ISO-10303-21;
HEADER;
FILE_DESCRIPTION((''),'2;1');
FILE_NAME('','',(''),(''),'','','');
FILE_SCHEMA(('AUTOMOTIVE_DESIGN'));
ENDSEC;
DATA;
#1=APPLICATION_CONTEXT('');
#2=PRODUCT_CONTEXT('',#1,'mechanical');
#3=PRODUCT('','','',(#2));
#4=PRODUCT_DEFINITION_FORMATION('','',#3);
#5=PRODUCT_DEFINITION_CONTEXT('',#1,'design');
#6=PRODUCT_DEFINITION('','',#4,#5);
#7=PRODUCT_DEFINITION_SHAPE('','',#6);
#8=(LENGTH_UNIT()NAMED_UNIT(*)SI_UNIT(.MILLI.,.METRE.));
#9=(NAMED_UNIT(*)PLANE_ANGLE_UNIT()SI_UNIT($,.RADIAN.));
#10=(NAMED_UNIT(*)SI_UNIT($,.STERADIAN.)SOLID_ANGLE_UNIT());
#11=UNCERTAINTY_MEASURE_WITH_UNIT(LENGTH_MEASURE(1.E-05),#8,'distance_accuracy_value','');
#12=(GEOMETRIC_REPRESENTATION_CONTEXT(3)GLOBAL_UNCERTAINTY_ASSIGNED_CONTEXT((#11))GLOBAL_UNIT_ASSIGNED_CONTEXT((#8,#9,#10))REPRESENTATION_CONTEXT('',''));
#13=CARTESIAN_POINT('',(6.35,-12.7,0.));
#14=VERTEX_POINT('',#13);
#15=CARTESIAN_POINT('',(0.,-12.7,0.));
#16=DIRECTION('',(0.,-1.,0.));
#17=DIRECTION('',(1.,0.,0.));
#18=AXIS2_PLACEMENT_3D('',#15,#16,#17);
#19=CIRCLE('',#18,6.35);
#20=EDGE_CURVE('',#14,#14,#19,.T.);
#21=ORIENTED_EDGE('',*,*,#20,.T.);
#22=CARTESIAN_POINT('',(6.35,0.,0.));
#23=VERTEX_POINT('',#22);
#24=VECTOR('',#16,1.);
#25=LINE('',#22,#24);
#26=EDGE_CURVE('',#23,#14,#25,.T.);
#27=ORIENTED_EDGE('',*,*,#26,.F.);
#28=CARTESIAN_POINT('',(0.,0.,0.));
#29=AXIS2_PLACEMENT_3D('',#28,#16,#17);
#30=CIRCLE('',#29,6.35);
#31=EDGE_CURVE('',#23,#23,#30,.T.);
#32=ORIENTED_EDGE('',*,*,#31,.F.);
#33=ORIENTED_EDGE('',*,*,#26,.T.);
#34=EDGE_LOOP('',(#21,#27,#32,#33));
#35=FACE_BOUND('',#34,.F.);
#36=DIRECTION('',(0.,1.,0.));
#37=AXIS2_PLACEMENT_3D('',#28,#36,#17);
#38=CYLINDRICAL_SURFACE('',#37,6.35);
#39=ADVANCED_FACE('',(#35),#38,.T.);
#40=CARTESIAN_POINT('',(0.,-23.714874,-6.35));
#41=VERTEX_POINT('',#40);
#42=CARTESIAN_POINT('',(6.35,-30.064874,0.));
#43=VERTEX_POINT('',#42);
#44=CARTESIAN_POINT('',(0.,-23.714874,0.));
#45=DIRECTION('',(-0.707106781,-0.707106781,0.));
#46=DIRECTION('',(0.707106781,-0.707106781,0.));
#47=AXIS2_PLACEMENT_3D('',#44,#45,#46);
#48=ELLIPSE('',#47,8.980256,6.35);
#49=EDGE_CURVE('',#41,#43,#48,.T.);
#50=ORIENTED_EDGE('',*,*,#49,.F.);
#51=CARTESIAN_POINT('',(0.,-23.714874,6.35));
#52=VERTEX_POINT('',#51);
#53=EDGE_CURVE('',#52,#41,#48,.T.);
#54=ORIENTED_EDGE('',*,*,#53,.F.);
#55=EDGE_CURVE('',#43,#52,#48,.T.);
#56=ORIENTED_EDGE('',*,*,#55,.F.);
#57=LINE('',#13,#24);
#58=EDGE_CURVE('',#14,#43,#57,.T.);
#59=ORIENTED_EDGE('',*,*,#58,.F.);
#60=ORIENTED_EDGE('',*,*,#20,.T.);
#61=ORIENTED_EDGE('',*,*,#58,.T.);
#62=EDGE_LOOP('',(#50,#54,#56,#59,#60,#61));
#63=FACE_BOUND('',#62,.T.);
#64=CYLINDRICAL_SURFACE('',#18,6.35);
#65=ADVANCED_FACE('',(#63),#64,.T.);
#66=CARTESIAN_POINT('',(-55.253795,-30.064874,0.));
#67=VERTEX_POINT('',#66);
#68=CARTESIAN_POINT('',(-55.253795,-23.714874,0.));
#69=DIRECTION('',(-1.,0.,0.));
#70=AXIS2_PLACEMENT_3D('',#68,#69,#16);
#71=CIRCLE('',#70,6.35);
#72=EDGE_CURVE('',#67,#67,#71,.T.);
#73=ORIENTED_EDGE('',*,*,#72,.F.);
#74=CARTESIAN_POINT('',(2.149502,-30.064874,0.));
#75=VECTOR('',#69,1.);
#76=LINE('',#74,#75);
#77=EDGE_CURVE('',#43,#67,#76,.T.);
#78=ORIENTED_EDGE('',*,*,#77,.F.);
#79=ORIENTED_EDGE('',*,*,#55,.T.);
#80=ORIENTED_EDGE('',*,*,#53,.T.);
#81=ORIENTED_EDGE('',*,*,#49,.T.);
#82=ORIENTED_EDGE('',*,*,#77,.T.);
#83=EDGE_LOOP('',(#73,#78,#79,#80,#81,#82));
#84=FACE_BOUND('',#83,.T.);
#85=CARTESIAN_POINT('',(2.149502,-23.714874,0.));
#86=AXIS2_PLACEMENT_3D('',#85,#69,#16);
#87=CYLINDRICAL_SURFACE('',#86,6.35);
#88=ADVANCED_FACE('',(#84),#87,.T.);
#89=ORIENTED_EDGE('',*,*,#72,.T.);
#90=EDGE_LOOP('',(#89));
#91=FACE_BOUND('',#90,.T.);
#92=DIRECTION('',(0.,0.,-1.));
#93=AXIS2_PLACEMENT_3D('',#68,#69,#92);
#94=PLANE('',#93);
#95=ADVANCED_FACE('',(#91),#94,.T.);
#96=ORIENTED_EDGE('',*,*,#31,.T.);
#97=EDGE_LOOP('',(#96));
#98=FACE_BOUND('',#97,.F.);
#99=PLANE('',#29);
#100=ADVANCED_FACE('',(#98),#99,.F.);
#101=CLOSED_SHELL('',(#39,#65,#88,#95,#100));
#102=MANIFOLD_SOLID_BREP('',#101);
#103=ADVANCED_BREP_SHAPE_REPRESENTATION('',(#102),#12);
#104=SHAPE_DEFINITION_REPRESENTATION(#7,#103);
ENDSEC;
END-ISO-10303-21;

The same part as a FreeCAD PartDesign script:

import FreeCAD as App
import Part
import Sketcher

V = App.Vector
Q = App.Units.Quantity

doc = App.newDocument("Part")
body = doc.addObject("PartDesign::Body", "Body")

# Sketch on XZ plane
sketch1 = body.newObject("Sketcher::SketchObject", "Sketch")
sketch1.AttachmentSupport = (doc.getObject("XZ_Plane"), [""])
sketch1.MapMode = "FlatFace"
sketch1.addGeometry(Part.Circle(V(0, 0, 0), V(0, 0, 1), 6), False)
sketch1.addConstraint(Sketcher.Constraint("Coincident", 0, 3, -1, 1))
sketch1.addConstraint(Sketcher.Constraint("Diameter", 0, Q("0.5 in")))
pad1 = body.newObject("PartDesign::Pad", "Pad")
pad1.Profile = sketch1
pad1.Length = Q("0.5 in")

# Sketch on XZ plane
sketch2 = body.newObject("Sketcher::SketchObject", "Sketch001")
sketch2.AttachmentSupport = (doc.getObject("XZ_Plane"), [""])
sketch2.MapMode = "FlatFace"
sketch2.AttachmentOffset = App.Placement(V(0, 0, 0.5 * 25.4), App.Rotation())
sketch2.addGeometry(Part.Circle(V(0, 0, 0), V(0, 0, 1), 6), False)
sketch2.addConstraint(Sketcher.Constraint("Coincident", 0, 3, -1, 1))
sketch2.addConstraint(Sketcher.Constraint("Diameter", 0, Q("0.5 in")))

# Sketch on XY plane
sketch3 = body.newObject("Sketcher::SketchObject", "Sketch002")
sketch3.AttachmentSupport = (doc.getObject("XY_Plane"), [""])
sketch3.MapMode = "FlatFace"
sketch3.addGeometry(Part.LineSegment(V(0, -15, 0), V(0, -24, 0)), False)
sketch3.addGeometry(Part.LineSegment(V(0, -24, 0), V(-57, -24, 0)), False)
sketch3.addConstraint(Sketcher.Constraint("Coincident", 0, 2, 1, 1))
sketch3.addConstraint(Sketcher.Constraint("Vertical", 0))
sketch3.addConstraint(Sketcher.Constraint("Horizontal", 1))
sketch3.addConstraint(Sketcher.Constraint("PointOnObject", 0, 1, -2))
sketch3.addConstraint(Sketcher.Constraint("DistanceY", 0, 1, -1, 1, 14.849502))
sketch3.addConstraint(Sketcher.Constraint("DistanceX", 1, 2, 1, 1, 57.403296))
sketch3.addConstraint(Sketcher.Constraint("DistanceY", 0, 2, 0, 1, 8.865372))
doc.recompute()

additivepipe = body.newObject("PartDesign::AdditivePipe", "AdditivePipe")
additivepipe.Profile = sketch2
additivepipe.Spine = (sketch3, ["Edge1", "Edge2"])
additivepipe.Transition = "Right corner"

doc.recompute()
